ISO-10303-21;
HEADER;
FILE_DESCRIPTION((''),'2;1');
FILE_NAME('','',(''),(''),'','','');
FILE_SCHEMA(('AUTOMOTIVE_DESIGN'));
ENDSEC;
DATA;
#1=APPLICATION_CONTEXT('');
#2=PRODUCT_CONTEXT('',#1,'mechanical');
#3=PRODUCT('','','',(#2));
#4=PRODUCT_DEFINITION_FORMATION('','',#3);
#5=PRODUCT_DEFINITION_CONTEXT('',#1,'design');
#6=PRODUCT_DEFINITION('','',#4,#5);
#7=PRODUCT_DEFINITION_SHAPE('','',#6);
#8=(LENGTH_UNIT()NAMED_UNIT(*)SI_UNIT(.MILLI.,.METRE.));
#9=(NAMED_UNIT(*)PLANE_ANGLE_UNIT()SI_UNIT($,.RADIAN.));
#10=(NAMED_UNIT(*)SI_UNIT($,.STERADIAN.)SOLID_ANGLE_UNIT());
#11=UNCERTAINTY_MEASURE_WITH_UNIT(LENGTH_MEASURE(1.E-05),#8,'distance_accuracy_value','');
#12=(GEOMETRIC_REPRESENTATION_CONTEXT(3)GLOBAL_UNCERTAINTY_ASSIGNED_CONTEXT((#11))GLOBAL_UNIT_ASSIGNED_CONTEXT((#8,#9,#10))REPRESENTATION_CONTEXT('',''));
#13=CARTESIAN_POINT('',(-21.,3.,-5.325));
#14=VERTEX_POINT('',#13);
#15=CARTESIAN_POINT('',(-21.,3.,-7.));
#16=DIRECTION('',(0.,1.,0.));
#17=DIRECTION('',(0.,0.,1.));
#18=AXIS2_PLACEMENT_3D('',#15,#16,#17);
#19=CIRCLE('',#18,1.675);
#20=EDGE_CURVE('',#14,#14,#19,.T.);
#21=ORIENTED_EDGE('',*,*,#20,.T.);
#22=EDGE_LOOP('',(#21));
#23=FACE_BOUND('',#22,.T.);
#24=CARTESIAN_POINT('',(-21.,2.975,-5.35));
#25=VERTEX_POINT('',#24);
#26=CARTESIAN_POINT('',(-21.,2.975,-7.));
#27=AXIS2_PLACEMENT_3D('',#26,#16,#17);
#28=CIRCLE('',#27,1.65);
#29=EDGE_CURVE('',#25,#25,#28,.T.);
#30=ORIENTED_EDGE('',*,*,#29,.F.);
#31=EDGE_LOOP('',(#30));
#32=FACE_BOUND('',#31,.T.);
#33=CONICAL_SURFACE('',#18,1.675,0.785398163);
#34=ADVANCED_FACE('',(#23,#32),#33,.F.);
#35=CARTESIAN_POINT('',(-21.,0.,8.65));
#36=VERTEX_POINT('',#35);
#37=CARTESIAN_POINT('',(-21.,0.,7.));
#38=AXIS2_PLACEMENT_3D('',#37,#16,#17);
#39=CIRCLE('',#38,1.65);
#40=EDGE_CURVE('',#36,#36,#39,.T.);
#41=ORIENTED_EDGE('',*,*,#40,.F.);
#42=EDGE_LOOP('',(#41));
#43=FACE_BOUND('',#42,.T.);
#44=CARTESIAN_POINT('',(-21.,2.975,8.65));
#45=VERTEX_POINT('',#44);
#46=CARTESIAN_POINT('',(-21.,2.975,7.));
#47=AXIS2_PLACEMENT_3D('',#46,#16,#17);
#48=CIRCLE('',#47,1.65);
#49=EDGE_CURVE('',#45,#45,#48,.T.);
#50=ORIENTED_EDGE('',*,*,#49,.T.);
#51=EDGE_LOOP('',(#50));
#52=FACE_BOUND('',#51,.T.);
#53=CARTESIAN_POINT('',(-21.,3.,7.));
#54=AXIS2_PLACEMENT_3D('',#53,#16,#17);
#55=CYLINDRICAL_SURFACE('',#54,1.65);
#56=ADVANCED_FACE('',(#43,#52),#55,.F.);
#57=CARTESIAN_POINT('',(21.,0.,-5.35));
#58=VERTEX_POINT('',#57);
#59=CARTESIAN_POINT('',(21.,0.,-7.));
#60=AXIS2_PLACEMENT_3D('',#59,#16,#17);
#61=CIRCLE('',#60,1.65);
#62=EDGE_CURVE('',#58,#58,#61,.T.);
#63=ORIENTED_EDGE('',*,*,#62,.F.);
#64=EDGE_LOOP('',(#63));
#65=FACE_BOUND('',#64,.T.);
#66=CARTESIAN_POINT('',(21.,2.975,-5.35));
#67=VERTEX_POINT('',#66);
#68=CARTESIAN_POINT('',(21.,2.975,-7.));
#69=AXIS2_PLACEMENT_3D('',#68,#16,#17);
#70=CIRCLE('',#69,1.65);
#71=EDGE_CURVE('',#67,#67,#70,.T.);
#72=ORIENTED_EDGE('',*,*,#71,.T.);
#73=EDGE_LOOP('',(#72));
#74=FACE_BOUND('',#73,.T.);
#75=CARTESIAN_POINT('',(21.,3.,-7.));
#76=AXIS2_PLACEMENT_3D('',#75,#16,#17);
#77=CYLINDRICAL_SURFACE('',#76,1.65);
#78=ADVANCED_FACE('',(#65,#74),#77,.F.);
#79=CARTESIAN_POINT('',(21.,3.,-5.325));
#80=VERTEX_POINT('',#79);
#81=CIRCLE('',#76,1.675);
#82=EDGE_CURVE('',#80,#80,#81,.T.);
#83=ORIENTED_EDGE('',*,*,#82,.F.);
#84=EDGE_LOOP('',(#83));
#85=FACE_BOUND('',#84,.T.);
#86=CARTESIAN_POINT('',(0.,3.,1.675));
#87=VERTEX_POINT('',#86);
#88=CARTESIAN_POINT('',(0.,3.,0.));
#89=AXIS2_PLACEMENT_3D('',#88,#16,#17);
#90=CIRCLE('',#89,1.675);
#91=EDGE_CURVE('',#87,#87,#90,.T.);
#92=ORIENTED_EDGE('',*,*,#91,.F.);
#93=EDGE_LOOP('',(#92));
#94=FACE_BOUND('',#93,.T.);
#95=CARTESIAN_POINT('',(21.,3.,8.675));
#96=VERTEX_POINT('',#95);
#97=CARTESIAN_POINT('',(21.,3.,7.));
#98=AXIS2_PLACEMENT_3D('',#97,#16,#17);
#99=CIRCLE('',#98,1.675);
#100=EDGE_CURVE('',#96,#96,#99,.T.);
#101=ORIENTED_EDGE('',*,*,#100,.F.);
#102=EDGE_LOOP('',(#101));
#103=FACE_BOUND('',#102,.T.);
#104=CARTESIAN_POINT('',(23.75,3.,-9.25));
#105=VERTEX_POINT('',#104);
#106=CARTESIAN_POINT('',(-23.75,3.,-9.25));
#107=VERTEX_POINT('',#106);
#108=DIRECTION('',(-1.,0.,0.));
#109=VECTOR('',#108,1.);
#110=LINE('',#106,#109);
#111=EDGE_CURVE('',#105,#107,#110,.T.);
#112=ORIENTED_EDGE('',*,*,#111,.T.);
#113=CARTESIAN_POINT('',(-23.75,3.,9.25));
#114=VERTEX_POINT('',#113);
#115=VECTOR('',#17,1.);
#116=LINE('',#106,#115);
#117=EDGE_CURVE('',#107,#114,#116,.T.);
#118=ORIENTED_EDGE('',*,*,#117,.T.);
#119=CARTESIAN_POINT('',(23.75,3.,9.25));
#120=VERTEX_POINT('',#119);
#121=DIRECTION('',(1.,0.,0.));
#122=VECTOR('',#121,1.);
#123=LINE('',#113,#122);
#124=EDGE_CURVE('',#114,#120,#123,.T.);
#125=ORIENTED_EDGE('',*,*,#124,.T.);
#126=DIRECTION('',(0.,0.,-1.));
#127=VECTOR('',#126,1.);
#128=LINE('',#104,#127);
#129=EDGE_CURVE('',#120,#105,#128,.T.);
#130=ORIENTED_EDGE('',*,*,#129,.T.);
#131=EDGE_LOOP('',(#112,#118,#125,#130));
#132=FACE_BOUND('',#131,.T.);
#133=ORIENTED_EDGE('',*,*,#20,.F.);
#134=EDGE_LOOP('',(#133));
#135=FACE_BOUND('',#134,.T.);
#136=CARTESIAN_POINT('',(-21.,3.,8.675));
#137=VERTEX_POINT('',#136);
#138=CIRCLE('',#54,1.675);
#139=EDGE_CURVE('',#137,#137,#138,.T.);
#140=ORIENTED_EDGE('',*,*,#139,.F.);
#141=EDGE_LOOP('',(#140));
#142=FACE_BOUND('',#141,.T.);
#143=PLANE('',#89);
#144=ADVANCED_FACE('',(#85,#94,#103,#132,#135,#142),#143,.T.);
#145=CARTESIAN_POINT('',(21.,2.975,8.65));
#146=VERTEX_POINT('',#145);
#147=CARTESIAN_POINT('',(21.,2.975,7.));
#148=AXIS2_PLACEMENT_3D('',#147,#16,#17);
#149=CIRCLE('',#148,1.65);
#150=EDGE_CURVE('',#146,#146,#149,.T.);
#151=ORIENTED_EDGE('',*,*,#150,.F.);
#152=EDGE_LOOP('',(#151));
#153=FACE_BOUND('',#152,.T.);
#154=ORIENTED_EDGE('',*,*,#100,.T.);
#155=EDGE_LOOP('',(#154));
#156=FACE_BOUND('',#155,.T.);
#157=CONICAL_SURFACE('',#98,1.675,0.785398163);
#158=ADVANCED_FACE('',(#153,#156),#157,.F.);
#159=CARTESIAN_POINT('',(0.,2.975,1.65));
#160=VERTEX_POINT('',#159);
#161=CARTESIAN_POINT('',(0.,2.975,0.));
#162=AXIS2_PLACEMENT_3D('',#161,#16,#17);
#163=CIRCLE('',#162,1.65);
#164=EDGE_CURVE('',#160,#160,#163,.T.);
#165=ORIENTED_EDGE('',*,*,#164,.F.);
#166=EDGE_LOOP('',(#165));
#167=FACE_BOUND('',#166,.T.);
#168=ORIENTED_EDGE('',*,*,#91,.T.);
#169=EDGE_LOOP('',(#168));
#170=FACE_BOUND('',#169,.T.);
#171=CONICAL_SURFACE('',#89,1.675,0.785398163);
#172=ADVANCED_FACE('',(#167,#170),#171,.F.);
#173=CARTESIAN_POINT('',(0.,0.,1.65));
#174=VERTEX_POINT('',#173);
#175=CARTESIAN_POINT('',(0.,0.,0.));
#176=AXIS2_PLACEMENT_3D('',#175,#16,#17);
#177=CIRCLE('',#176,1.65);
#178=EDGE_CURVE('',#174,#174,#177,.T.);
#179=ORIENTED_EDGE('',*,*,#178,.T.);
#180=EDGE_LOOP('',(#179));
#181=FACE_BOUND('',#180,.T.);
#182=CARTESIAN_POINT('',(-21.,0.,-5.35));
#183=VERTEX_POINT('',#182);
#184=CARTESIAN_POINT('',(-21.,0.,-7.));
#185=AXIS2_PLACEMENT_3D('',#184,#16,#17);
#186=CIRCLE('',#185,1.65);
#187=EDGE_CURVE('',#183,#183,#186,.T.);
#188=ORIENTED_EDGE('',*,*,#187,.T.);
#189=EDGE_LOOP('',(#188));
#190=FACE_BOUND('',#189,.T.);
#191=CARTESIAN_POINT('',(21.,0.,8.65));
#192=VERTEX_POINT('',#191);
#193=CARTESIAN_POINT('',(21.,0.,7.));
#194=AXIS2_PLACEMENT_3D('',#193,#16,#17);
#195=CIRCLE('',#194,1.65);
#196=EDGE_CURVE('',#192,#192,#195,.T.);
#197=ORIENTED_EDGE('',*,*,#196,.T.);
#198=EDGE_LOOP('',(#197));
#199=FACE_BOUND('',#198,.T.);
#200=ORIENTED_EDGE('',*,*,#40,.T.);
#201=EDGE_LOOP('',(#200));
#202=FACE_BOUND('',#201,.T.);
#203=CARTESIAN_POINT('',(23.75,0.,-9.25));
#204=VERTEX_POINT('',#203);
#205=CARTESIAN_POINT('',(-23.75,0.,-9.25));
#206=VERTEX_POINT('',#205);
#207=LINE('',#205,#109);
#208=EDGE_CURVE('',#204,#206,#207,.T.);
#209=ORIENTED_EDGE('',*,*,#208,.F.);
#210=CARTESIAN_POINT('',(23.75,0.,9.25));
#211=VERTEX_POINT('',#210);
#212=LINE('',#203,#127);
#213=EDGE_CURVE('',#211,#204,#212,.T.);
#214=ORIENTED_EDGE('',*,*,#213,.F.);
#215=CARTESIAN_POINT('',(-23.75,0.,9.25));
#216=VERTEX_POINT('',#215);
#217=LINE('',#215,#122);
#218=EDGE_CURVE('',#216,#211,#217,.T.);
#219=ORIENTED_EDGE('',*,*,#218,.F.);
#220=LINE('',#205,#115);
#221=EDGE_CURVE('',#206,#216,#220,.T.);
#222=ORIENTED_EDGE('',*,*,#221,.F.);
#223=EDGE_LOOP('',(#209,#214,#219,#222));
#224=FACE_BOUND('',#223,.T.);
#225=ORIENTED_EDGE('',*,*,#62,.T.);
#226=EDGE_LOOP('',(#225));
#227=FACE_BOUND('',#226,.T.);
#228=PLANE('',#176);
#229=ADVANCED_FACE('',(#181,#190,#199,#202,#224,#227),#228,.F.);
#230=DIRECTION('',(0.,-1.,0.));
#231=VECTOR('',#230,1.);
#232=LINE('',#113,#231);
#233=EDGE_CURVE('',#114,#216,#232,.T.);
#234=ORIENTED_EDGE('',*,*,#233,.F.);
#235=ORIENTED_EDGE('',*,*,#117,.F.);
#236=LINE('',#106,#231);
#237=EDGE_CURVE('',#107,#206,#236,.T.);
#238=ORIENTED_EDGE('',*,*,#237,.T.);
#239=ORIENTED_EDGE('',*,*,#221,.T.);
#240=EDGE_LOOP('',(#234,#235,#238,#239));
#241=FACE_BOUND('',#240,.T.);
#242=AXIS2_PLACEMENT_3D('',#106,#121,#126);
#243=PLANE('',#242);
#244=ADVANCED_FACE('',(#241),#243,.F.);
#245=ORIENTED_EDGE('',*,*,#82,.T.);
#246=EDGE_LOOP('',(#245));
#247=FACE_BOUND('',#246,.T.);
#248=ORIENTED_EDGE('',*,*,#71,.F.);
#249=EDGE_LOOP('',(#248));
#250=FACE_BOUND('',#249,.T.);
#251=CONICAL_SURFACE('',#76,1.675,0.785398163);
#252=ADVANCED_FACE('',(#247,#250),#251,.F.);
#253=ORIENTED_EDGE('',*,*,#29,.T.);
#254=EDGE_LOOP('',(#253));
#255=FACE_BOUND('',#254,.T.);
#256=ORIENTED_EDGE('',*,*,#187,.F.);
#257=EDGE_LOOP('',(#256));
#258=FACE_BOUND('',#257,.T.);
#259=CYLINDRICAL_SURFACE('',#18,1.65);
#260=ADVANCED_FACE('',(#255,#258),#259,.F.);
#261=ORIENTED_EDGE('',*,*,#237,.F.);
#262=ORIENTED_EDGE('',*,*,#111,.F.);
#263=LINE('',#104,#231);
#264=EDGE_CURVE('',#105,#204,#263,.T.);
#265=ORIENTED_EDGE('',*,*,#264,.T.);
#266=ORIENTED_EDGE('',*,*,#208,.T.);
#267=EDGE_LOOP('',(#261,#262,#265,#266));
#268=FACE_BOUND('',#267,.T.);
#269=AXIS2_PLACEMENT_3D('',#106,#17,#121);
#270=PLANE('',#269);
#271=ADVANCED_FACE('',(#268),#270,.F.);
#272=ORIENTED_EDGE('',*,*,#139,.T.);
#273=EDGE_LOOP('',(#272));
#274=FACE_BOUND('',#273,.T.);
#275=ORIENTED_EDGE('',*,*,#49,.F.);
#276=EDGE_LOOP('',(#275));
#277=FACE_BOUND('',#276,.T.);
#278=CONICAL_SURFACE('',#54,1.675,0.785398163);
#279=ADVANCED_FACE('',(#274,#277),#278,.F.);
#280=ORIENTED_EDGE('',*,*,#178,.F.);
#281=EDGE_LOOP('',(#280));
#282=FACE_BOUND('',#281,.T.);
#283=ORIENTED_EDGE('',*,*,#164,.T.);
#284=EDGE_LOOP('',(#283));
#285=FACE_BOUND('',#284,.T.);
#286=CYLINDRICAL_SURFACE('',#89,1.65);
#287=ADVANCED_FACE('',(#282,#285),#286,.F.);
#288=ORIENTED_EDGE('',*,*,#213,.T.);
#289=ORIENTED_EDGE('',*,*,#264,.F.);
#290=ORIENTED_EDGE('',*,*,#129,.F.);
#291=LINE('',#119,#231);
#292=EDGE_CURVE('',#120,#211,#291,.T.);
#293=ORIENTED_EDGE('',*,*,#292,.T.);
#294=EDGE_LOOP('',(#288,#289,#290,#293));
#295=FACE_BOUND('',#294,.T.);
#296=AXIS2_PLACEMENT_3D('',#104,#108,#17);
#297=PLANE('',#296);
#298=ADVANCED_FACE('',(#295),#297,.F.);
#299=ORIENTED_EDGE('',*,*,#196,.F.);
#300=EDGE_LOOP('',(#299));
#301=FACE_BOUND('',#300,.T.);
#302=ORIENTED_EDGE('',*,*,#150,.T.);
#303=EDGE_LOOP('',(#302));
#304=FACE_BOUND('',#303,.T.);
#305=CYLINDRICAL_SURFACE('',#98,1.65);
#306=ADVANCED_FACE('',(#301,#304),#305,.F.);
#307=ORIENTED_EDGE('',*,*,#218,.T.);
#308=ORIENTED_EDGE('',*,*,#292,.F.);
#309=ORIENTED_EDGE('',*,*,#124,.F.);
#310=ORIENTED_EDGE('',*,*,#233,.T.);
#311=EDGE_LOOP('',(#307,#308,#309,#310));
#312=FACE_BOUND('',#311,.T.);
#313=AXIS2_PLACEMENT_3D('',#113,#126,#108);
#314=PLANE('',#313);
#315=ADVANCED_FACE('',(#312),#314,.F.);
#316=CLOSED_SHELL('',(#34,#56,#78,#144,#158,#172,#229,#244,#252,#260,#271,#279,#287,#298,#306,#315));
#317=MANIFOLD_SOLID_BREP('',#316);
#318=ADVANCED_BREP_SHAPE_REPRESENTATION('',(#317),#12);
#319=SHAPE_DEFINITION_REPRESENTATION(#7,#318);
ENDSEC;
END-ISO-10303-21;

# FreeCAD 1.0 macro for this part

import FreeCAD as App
import Part
import Sketcher
Q = App.Units.Quantity

doc = App.newDocument("Part")
body = doc.addObject("PartDesign::Body", "Body")

# Sketch on XZ plane
sketch1 = doc.addObject("Sketcher::SketchObject", "Sketch")
body.addObject(sketch1)
sketch1.AttachmentSupport = (doc.XZ_Plane, [""])
sketch1.MapMode = "FlatFace"
sketch1.addGeometry(Part.LineSegment(App.Vector(-24, -9, 0), App.Vector(-24, 9, 0)), False)
sketch1.addGeometry(Part.LineSegment(App.Vector(-24, 9, 0), App.Vector(24, 9, 0)), False)
sketch1.addGeometry(Part.LineSegment(App.Vector(24, 9, 0), App.Vector(24, -9, 0)), False)
sketch1.addGeometry(Part.LineSegment(App.Vector(24, -9, 0), App.Vector(-24, -9, 0)), False)
sketch1.addConstraint(Sketcher.Constraint("Coincident", 0, 2, 1, 1))
sketch1.addConstraint(Sketcher.Constraint("Coincident", 1, 2, 2, 1))
sketch1.addConstraint(Sketcher.Constraint("Coincident", 2, 2, 3, 1))
sketch1.addConstraint(Sketcher.Constraint("Coincident", 3, 2, 0, 1))
sketch1.addConstraint(Sketcher.Constraint("Vertical", 0))
sketch1.addConstraint(Sketcher.Constraint("Horizontal", 1))
sketch1.addConstraint(Sketcher.Constraint("Vertical", 2))
sketch1.addConstraint(Sketcher.Constraint("Horizontal", 3))
sketch1.addConstraint(Sketcher.Constraint("Symmetric", 0, 2, 2, 2, -1, 1))
sketch1.addConstraint(Sketcher.Constraint("DistanceX", 1, 1, 1, 2, Q("47.5 mm")))
sketch1.addConstraint(Sketcher.Constraint("DistanceY", 0, 1, 0, 2, Q("18.5 mm")))
pad1 = doc.addObject("PartDesign::Pad", "Pad")
body.addObject(pad1)
pad1.Profile = sketch1
pad1.Length = 3
pad1.Reversed = True

# Sketch on XZ plane
sketch2 = doc.addObject("Sketcher::SketchObject", "Sketch001")
body.addObject(sketch2)
sketch2.AttachmentSupport = (doc.XZ_Plane, [""])
sketch2.MapMode = "FlatFace"
sketch2.AttachmentOffset = App.Placement(App.Vector(0, 0, -3), App.Rotation())
sketch2.addGeometry(Part.Circle(App.Vector(0, 0, 0), App.Vector(0, 0, 1), 1.6), False)
sketch2.addGeometry(Part.Circle(App.Vector(21, 7, 0), App.Vector(0, 0, 1), 1.6), False)
sketch2.addGeometry(Part.Circle(App.Vector(-21, -7, 0), App.Vector(0, 0, 1), 1.6), False)
sketch2.addGeometry(Part.Circle(App.Vector(-21, 7, 0), App.Vector(0, 0, 1), 1.6), False)
sketch2.addGeometry(Part.Circle(App.Vector(21, -7, 0), App.Vector(0, 0, 1), 1.6), False)
sketch2.addConstraint(Sketcher.Constraint("Coincident", 0, 3, -1, 1))
sketch2.addConstraint(Sketcher.Constraint("Equal", 0, 1))
sketch2.addConstraint(Sketcher.Constraint("Equal", 1, 2))
sketch2.addConstraint(Sketcher.Constraint("Equal", 2, 3))
sketch2.addConstraint(Sketcher.Constraint("Equal", 3, 4))
sketch2.addConstraint(Sketcher.Constraint("Symmetric", 1, 3, 2, 3, -1, 1))
sketch2.addConstraint(Sketcher.Constraint("Symmetric", 3, 3, 4, 3, -1, 1))
sketch2.addConstraint(Sketcher.Constraint("Symmetric", 1, 3, 3, 3, -2))
sketch2.addConstraint(Sketcher.Constraint("Diameter", 0, Q("3.3 mm")))
sketch2.addConstraint(Sketcher.Constraint("DistanceX", -1, 1, 1, 3, Q("21 mm")))
sketch2.addConstraint(Sketcher.Constraint("DistanceY", -1, 1, 1, 3, Q("7 mm")))
doc.recompute()
hole = doc.addObject("PartDesign::Hole", "Hole")
body.addObject(hole)
hole.Profile = sketch2
hole.ThreadType = "None"
hole.Diameter = 3.3
hole.DepthType = "ThroughAll"
hole.HoleCutType = "Countersink"
hole.HoleCutDiameter = 3.35
hole.HoleCutCountersinkAngle = 90
hole.Reversed = True

doc.recompute()
